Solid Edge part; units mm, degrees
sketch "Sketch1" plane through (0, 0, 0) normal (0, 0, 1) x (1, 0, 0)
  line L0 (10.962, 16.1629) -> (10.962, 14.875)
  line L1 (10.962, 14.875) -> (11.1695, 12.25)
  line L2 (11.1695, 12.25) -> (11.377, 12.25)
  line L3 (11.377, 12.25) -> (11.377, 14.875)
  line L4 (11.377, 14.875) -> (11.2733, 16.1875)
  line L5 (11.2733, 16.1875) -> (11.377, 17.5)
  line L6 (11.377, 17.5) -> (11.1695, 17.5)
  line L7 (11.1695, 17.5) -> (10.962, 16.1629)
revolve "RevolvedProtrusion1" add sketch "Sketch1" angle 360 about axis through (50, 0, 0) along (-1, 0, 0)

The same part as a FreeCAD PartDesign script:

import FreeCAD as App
import Part
import Sketcher
from FreeCAD import Vector
Q = App.Units.Quantity

doc = App.newDocument("Part")
body = doc.addObject("PartDesign::Body", "Body")

# Sketch on XY plane
sketch1 = doc.addObject("Sketcher::SketchObject", "Sketch")
body.addObject(sketch1)
sketch1.AttachmentSupport = (doc.XY_Plane, [""])
sketch1.MapMode = "FlatFace"
sketch1.addGeometry(Part.LineSegment(Vector(11.1695, 17.5, 0), Vector(10.962, 16.1629, 0)), False)
sketch1.addGeometry(Part.LineSegment(Vector(10.962, 16.1629, 0), Vector(10.962, 14.875, 0)), False)
sketch1.addGeometry(Part.LineSegment(Vector(10.962, 14.875, 0), Vector(11.1695, 12.25, 0)), False)
sketch1.addGeometry(Part.LineSegment(Vector(11.1695, 12.25, 0), Vector(11.377, 12.25, 0)), False)
sketch1.addGeometry(Part.LineSegment(Vector(11.377, 12.25, 0), Vector(11.377, 14.875, 0)), False)
sketch1.addGeometry(Part.LineSegment(Vector(11.377, 14.875, 0), Vector(11.2733, 16.1875, 0)), False)
sketch1.addGeometry(Part.LineSegment(Vector(11.2733, 16.1875, 0), Vector(11.377, 17.5, 0)), False)
sketch1.addGeometry(Part.LineSegment(Vector(11.377, 17.5, 0), Vector(11.1695, 17.5, 0)), False)
sketch1.addConstraint(Sketcher.Constraint("Coincident", 0, 2, 1, 1))
sketch1.addConstraint(Sketcher.Constraint("Coincident", 1, 2, 2, 1))
sketch1.addConstraint(Sketcher.Constraint("Coincident", 2, 2, 3, 1))
sketch1.addConstraint(Sketcher.Constraint("Coincident", 3, 2, 4, 1))
sketch1.addConstraint(Sketcher.Constraint("Coincident", 4, 2, 5, 1))
sketch1.addConstraint(Sketcher.Constraint("Coincident", 5, 2, 6, 1))
sketch1.addConstraint(Sketcher.Constraint("Coincident", 6, 2, 7, 1))
sketch1.addConstraint(Sketcher.Constraint("Coincident", 7, 2, 0, 1))
sketch1.addConstraint(Sketcher.Constraint("Vertical", 1))
sketch1.addConstraint(Sketcher.Constraint("Horizontal", 3))
sketch1.addConstraint(Sketcher.Constraint("Vertical", 4))
sketch1.addConstraint(Sketcher.Constraint("Horizontal", 7))
sketch1.addConstraint(Sketcher.Constraint("Parallel", 2, 5))
sketch1.addConstraint(Sketcher.Constraint("Horizontal", 1, 2, 4, 2))
sketch1.addConstraint(Sketcher.Constraint("Vertical", 4, 2, 6, 2))
sketch1.addConstraint(Sketcher.Constraint("Vertical", 2, 2, 7, 2))
sketch1.addConstraint(Sketcher.Constraint("Equal", 5, 6))
sketch1.addConstraint(Sketcher.Constraint("DistanceY", -1, 1, 6, 2, 17.5))
sketch1.addConstraint(Sketcher.Constraint("Angle", 0, Q("-98.8212 deg")))
sketch1.addConstraint(Sketcher.Constraint("Angle", 2, Q("-85.4803 deg")))
sketch1.addConstraint(Sketcher.Constraint("DistanceY", 1, 2, 1, 1, 1.288))
sketch1.addConstraint(Sketcher.Constraint("DistanceY", 4, 1, 4, 2, 2.625))
sketch1.addConstraint(Sketcher.Constraint("DistanceX", 3, 1, 3, 2, 0.2075))
sketch1.addConstraint(Sketcher.Constraint("DistanceX", -1, 1, 0, 2, 10.962))
revolution = doc.addObject("PartDesign::Revolution", "Revolution")
body.addObject(revolution)
revolution.Profile = sketch1
revolution.ReferenceAxis = (sketch1, ["H_Axis"])
revolution.Angle = 360

doc.recompute()
